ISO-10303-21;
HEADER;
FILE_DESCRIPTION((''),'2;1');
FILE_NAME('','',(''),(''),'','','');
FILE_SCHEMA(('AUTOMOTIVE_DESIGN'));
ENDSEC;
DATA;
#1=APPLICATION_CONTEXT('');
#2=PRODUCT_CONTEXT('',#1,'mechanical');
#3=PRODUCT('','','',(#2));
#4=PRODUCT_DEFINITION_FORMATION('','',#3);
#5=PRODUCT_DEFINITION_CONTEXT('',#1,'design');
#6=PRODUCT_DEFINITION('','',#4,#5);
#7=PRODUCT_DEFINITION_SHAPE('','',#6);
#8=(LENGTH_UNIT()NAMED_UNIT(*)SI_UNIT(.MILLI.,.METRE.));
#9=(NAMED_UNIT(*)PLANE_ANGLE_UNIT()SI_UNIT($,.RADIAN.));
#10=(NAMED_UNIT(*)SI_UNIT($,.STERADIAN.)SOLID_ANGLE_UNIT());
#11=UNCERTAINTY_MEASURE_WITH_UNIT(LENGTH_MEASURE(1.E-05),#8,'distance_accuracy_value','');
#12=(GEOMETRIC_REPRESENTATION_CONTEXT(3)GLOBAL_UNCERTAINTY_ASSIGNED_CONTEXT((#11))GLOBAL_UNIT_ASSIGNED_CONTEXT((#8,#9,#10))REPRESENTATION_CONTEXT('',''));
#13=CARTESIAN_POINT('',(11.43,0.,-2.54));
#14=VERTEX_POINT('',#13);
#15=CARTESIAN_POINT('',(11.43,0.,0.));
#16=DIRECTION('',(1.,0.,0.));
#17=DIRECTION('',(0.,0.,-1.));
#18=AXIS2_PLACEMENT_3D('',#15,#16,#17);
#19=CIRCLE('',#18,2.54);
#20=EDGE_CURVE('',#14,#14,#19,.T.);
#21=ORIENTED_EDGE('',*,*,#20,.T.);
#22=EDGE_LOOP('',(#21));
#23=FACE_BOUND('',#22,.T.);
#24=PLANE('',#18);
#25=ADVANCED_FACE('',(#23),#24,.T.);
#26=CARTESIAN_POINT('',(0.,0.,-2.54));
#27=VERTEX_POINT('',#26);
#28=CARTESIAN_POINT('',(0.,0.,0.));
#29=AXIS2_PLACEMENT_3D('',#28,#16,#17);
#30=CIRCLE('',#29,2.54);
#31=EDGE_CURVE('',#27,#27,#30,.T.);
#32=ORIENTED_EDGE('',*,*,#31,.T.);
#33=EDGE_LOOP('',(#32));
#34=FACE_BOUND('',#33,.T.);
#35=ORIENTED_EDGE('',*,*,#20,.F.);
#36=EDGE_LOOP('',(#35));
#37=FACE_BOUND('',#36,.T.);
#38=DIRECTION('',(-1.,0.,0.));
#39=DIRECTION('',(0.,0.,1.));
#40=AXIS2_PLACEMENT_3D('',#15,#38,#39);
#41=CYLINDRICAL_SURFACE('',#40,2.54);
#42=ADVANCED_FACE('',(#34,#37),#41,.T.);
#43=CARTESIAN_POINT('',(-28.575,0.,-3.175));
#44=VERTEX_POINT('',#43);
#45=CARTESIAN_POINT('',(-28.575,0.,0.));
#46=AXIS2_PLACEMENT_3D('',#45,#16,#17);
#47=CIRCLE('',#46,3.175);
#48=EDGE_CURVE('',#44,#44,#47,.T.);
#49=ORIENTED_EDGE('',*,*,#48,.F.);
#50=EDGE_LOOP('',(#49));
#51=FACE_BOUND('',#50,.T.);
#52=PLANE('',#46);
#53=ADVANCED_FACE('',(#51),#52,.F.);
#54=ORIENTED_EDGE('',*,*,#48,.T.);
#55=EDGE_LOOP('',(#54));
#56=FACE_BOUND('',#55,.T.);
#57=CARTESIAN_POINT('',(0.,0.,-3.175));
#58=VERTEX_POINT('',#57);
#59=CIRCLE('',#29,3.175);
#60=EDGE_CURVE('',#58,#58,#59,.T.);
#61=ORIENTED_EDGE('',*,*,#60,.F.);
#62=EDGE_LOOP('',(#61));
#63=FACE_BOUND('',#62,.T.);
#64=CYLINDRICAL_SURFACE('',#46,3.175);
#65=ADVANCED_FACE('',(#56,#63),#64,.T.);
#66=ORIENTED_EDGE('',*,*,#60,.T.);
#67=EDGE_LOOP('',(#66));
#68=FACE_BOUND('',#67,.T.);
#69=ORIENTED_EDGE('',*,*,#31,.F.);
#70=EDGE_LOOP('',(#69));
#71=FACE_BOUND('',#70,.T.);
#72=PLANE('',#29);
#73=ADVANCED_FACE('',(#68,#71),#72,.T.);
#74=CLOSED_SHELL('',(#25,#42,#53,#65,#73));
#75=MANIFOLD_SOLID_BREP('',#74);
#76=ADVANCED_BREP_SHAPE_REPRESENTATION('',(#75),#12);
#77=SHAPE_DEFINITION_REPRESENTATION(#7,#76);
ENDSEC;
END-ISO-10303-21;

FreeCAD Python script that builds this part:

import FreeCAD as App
import Part
import Sketcher

V = App.Vector
Q = App.Units.Quantity

doc = App.newDocument("Part")
body = doc.addObject("PartDesign::Body", "Body")

# Sketch on YZ plane
sketch1 = doc.addObject("Sketcher::SketchObject", "Sketch")
body.addObject(sketch1)
sketch1.AttachmentSupport = (doc.YZ_Plane, [""])
sketch1.MapMode = "FlatFace"
sketch1.addGeometry(Part.Circle(V(0, 0, 0), V(0, 0, 1), 2.5), False)
sketch1.addConstraint(Sketcher.Constraint("Coincident", 0, 3, -1, 1))
sketch1.addConstraint(Sketcher.Constraint("Diameter", 0, Q("0.2 in")))
pad1 = doc.addObject("PartDesign::Pad", "Pad")
body.addObject(pad1)
pad1.Profile = sketch1
pad1.Length = Q("0.45 in")

# Sketch on YZ plane
sketch2 = doc.addObject("Sketcher::SketchObject", "Sketch001")
body.addObject(sketch2)
sketch2.AttachmentSupport = (doc.YZ_Plane, [""])
sketch2.MapMode = "FlatFace"
sketch2.AttachmentOffset = App.Placement(V(0, 0, -1.125 * 25.4), App.Rotation())
sketch2.addGeometry(Part.Circle(V(0, 0, 0), V(0, 0, 1), 3.2), False)
sketch2.addConstraint(Sketcher.Constraint("Coincident", 0, 3, -1, 1))
sketch2.addConstraint(Sketcher.Constraint("Diameter", 0, Q("0.25 in")))
pad2 = doc.addObject("PartDesign::Pad", "Pad001")
body.addObject(pad2)
pad2.Profile = sketch2
pad2.Length = Q("1.125 in")

doc.recompute()
